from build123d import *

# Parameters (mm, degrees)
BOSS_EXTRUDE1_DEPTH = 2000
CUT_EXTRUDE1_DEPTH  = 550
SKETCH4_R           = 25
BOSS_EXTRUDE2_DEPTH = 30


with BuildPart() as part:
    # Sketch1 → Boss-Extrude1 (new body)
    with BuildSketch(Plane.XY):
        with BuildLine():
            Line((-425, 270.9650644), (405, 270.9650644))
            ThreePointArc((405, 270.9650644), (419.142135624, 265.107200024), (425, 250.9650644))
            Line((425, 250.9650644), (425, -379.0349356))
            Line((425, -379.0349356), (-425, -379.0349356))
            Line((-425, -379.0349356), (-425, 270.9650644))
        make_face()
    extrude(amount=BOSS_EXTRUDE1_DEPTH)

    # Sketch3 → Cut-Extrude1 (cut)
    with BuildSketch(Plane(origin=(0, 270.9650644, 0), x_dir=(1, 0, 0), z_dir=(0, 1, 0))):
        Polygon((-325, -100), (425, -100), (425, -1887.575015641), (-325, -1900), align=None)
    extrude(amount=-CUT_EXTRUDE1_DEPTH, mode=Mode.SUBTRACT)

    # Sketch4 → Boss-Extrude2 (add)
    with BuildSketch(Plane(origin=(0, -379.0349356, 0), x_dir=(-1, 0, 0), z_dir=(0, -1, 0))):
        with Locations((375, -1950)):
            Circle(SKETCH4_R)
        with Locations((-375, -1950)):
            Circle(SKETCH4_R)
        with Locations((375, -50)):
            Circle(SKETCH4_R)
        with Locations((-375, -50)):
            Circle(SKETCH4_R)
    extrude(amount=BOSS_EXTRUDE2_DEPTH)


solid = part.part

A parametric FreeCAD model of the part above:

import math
import FreeCAD as App
import Part
import Sketcher

doc = App.newDocument("Part")
body = doc.addObject("PartDesign::Body", "Body")

sketch1 = doc.addObject("Sketcher::SketchObject", "Sketch")
body.addObject(sketch1)
sketch1.AttachmentSupport = (doc.XY_Plane, [""])
sketch1.MapMode = "FlatFace"
sketch1.addGeometry([
    Part.LineSegment(App.Vector(405, 270.965064, 0), App.Vector(-425, 270.965064, 0)),
    Part.LineSegment(App.Vector(-425, 270.965064, 0), App.Vector(-425, -379.034936, 0)),
    Part.LineSegment(App.Vector(-425, -379.034936, 0), App.Vector(425, -379.034936, 0)),
    Part.LineSegment(App.Vector(425, -379.034936, 0), App.Vector(425, 250.965064, 0)),
    Part.ArcOfCircle(Part.Circle(App.Vector(405, 250.965064, 0), App.Vector(0, 0, 1), 20), math.radians(0), math.radians(90)),
], False)
sketch1.addConstraint([
    Sketcher.Constraint("Coincident", 0, 2, 1, 1),
    Sketcher.Constraint("Coincident", 1, 2, 2, 1),
    Sketcher.Constraint("Coincident", 2, 2, 3, 1),
    Sketcher.Constraint("Tangent", 3, 2, 4, 1),
    Sketcher.Constraint("Tangent", 4, 2, 0, 1),
    Sketcher.Constraint("Horizontal", 0),
    Sketcher.Constraint("Vertical", 1),
    Sketcher.Constraint("Horizontal", 2),
    Sketcher.Constraint("Vertical", 3),
    Sketcher.Constraint("Radius", 4, 20.0),
    Sketcher.Constraint("DistanceX", 0, 2, 0, 1, 830.0),
    Sketcher.Constraint("DistanceY", 1, 2, 1, 1, 650.0),
    Sketcher.Constraint("DistanceX", -1, 1, 4, 3, 405.0),
    Sketcher.Constraint("DistanceY", -1, 1, 4, 3, 250.965064),
])
pad1 = doc.addObject("PartDesign::Pad", "Pad")
body.addObject(pad1)
pad1.Profile = sketch1
pad1.Length = 2000

sketch2 = doc.addObject("Sketcher::SketchObject", "Sketch001")
body.addObject(sketch2)
sketch2.AttachmentSupport = (doc.XZ_Plane, [""])
sketch2.MapMode = "FlatFace"
sketch2.AttachmentOffset = App.Placement(App.Vector(0, 0, -270.965064), App.Rotation())
sketch2.addGeometry([
    Part.LineSegment(App.Vector(425, 100, 0), App.Vector(-325, 100, 0)),
    Part.LineSegment(App.Vector(-325, 100, 0), App.Vector(-325, 1900, 0)),
    Part.LineSegment(App.Vector(-325, 1900, 0), App.Vector(425, 1887.575016, 0)),
    Part.LineSegment(App.Vector(425, 1887.575016, 0), App.Vector(425, 100, 0)),
], False)
sketch2.addConstraint([
    Sketcher.Constraint("Coincident", 0, 2, 1, 1),
    Sketcher.Constraint("Coincident", 1, 2, 2, 1),
    Sketcher.Constraint("Coincident", 2, 2, 3, 1),
    Sketcher.Constraint("Coincident", 3, 2, 0, 1),
    Sketcher.Constraint("Horizontal", 0),
    Sketcher.Constraint("Vertical", 1),
    Sketcher.Constraint("Vertical", 3),
    Sketcher.Constraint("DistanceX", 0, 2, 0, 1, 750.0),
    Sketcher.Constraint("DistanceY", 1, 1, 1, 2, 1800.0),
    Sketcher.Constraint("DistanceX", 0, 2, -1, 1, 325.0),
    Sketcher.Constraint("DistanceY", -1, 1, 0, 2, 100.0),
    Sketcher.Constraint("DistanceY", 3, 2, 3, 1, 1787.575016),
])
pocket1 = doc.addObject("PartDesign::Pocket", "Pocket")
body.addObject(pocket1)
pocket1.Profile = sketch2
pocket1.Length = 550
pocket1.Reversed = True

sketch3 = doc.addObject("Sketcher::SketchObject", "Sketch002")
body.addObject(sketch3)
sketch3.AttachmentSupport = (doc.XZ_Plane, [""])
sketch3.MapMode = "FlatFace"
sketch3.AttachmentOffset = App.Placement(App.Vector(0, 0, 379.034936), App.Rotation())
sketch3.addGeometry([
    Part.Circle(App.Vector(-375, 1950, 0), App.Vector(0, 0, 1), 25),
    Part.Circle(App.Vector(375, 1950, 0), App.Vector(0, 0, 1), 25),
    Part.Circle(App.Vector(-375, 50, 0), App.Vector(0, 0, 1), 25),
    Part.Circle(App.Vector(375, 50, 0), App.Vector(0, 0, 1), 25),
], False)
sketch3.addConstraint([
    Sketcher.Constraint("Equal", 0, 1),
    Sketcher.Constraint("Equal", 1, 2),
    Sketcher.Constraint("Equal", 2, 3),
    Sketcher.Constraint("Symmetric", 0, 3, 1, 3, -2),
    Sketcher.Constraint("Symmetric", 2, 3, 3, 3, -2),
    Sketcher.Constraint("Vertical", 0, 3, 2, 3),
    Sketcher.Constraint("Diameter", 0, 50.0),
    Sketcher.Constraint("DistanceX", 0, 3, -1, 1, 375.0),
    Sketcher.Constraint("DistanceY", -1, 1, 0, 3, 1950.0),
    Sketcher.Constraint("DistanceY", -1, 1, 2, 3, 50.0),
])
pad2 = doc.addObject("PartDesign::Pad", "Pad001")
body.addObject(pad2)
pad2.Profile = sketch3
pad2.Length = 30

doc.recompute()
